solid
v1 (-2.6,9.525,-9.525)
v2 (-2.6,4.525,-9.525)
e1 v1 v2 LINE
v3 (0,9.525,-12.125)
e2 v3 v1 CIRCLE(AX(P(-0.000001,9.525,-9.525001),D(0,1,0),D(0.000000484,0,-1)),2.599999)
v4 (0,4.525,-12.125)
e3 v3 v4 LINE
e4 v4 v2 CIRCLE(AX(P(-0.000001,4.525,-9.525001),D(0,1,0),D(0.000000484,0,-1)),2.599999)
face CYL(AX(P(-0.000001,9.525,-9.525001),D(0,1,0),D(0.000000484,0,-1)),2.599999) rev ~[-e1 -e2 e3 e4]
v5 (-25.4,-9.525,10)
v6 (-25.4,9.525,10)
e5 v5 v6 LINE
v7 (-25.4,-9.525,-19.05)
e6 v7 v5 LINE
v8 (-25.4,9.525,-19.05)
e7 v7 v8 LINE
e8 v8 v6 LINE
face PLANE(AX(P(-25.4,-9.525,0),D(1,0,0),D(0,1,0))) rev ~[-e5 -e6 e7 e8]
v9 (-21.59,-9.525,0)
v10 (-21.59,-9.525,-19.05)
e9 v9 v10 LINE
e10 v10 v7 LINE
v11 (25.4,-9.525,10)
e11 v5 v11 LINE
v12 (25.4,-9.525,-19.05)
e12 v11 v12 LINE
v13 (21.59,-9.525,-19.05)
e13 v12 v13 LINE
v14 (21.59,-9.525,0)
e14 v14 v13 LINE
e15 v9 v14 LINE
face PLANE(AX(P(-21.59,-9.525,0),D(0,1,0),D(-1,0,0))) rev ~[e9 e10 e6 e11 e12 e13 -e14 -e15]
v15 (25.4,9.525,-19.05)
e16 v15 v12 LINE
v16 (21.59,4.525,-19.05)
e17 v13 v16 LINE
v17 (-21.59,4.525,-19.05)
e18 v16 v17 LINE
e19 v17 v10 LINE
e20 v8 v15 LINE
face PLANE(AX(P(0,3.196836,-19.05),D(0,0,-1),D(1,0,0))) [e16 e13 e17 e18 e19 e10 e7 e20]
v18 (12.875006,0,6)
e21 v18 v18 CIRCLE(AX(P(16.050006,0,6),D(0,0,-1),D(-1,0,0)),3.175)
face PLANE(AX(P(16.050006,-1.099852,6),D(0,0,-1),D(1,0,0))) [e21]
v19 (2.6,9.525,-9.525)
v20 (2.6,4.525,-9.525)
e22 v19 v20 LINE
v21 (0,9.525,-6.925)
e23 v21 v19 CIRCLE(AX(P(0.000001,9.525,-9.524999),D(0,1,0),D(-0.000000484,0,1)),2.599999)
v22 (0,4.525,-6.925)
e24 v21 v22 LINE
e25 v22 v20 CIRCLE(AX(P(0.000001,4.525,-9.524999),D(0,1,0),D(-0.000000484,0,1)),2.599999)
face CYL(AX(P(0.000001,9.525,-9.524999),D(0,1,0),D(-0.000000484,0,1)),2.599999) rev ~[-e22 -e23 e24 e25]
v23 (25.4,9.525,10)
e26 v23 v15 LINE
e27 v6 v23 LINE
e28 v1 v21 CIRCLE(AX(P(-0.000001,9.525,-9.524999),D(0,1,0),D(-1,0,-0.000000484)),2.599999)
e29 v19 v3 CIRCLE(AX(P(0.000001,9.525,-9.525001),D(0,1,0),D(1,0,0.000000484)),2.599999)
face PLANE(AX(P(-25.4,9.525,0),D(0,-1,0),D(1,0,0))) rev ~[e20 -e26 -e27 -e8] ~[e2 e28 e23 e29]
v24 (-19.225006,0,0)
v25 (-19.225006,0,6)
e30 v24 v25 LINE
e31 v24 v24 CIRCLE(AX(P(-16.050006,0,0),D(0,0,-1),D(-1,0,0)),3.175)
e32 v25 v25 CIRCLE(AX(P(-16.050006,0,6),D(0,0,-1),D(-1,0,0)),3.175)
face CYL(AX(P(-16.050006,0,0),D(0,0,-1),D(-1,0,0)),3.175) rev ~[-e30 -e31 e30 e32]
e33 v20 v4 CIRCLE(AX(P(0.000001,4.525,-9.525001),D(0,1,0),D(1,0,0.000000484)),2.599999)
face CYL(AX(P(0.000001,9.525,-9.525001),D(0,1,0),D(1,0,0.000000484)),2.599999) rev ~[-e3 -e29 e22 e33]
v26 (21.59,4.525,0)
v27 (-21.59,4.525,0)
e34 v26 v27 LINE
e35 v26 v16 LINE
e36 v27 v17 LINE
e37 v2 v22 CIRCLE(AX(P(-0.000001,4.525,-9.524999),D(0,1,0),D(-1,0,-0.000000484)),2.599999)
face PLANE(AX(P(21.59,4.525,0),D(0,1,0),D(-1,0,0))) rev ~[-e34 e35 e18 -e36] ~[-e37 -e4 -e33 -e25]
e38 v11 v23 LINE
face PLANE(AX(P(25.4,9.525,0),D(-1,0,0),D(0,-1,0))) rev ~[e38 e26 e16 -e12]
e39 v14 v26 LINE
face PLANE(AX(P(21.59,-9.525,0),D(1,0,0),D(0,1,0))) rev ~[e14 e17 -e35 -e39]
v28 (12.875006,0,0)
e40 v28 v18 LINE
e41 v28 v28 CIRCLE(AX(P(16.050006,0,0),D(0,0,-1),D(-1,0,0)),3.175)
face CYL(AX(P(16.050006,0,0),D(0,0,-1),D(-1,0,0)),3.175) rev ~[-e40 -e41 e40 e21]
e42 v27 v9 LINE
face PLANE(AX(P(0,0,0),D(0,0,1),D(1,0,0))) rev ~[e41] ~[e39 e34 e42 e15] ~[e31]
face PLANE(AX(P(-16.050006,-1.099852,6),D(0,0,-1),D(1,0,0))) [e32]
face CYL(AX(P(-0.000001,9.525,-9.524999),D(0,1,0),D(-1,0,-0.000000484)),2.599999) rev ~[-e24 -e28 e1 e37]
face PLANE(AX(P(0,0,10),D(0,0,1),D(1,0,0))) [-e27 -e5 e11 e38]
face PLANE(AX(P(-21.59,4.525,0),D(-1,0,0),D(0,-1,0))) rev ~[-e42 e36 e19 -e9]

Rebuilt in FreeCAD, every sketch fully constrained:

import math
import FreeCAD as App
import Part
import Sketcher

V = App.Vector
Q = App.Units.Quantity


def add_polygon(sketch, points):
    """Adds a closed chain of lines whose ends are joined by coincident constraints."""
    first, n = sketch.GeometryCount, len(points)
    for a, b in zip(points, points[1:] + points[:1]):
        sketch.addGeometry(Part.LineSegment(App.Vector(*a, 0), App.Vector(*b, 0)), False)
    for i in range(n):
        sketch.addConstraint(Sketcher.Constraint("Coincident", first + i, 2, first + (i + 1) % n, 1))

doc = App.newDocument("Part")
params = doc.addObject("Spreadsheet::Sheet", "Params")
for row, (alias, value) in enumerate([
    ("sketch1_width", "2 in"),
    ("sketch1_height", "0.75 in"),
    ("pad1_length", "10 mm"),
    ("sketch2_diameter", "0.25 in"),
    ("pocket1_length", "6 mm"),
    ("sketch3_width", "2 in"),
    ("sketch3_width2", "1.7 in"),
    ("sketch3_height", "0.75 in"),
    ("pad2_length", "0.75 in"),
], start=1):
    params.set(f"A{row}", alias)
    params.set(f"B{row}", "=" + value)
    params.setAlias(f"B{row}", alias)

body = doc.addObject("PartDesign::Body", "Body")

sketch1 = body.newObject("Sketcher::SketchObject", "Sketch")
sketch1.AttachmentSupport = (doc.getObject("XY_Plane"), [""])
sketch1.MapMode = "FlatFace"
add_polygon(sketch1, [(-25, 10), (-25, -10), (25, -10), (25, 10)])
sketch1.addConstraint(Sketcher.Constraint("Vertical", 0))
sketch1.addConstraint(Sketcher.Constraint("Horizontal", 1))
sketch1.addConstraint(Sketcher.Constraint("Vertical", 2))
sketch1.addConstraint(Sketcher.Constraint("Horizontal", 3))
sketch1.addConstraint(Sketcher.Constraint("Symmetric", 0, 2, 2, 2, -1, 1))
sketch1.addConstraint(Sketcher.Constraint("DistanceX", 1, 1, 1, 2, Q("2 in")))
sketch1.addConstraint(Sketcher.Constraint("DistanceY", 0, 2, 0, 1, Q("0.75 in")))
sketch1.setExpression("Constraints[9]", "Params.sketch1_width")
sketch1.setExpression("Constraints[10]", "Params.sketch1_height")
pad1 = body.newObject("PartDesign::Pad", "Pad")
pad1.Profile = sketch1
pad1.setExpression("Length", "Params.pad1_length")

sketch2 = body.newObject("Sketcher::SketchObject", "Sketch001")
sketch2.AttachmentSupport = (doc.getObject("XY_Plane"), [""])
sketch2.MapMode = "FlatFace"
sketch2.addGeometry(Part.Circle(V(-16.1, 0, 0), V(0, 0, 1), 3.2), False)
sketch2.addGeometry(Part.Circle(V(16.1, 0, 0), V(0, 0, 1), 3.2), False)
sketch2.addConstraint(Sketcher.Constraint("Equal", 0, 1))
sketch2.addConstraint(Sketcher.Constraint("Symmetric", 0, 3, 1, 3, -1, 1))
sketch2.addConstraint(Sketcher.Constraint("PointOnObject", 0, 3, -1))
sketch2.addConstraint(Sketcher.Constraint("Diameter", 0, Q("0.25 in")))
sketch2.addConstraint(Sketcher.Constraint("DistanceX", 0, 3, -1, 1, Q("16.050006 mm")))
sketch2.setExpression("Constraints[3]", "Params.sketch2_diameter")
pocket1 = body.newObject("PartDesign::Pocket", "Pocket")
pocket1.Profile = sketch2
pocket1.setExpression("Length", "Params.pocket1_length")
pocket1.Reversed = True

sketch3 = body.newObject("Sketcher::SketchObject", "Sketch002")
sketch3.AttachmentSupport = (doc.getObject("XY_Plane"), [""])
sketch3.MapMode = "FlatFace"
add_polygon(sketch3, [(-25.4, 9.5), (25.4, 9.5), (25.4, -9.5), (21.6, -9.5), (21.6, 4.5), (-21.6, 4.5), (-21.6, -9.5), (-25.4, -9.5)])
sketch3.addConstraint(Sketcher.Constraint("Horizontal", 0))
sketch3.addConstraint(Sketcher.Constraint("Vertical", 1))
sketch3.addConstraint(Sketcher.Constraint("Horizontal", 2))
sketch3.addConstraint(Sketcher.Constraint("Vertical", 3))
sketch3.addConstraint(Sketcher.Constraint("Horizontal", 4))
sketch3.addConstraint(Sketcher.Constraint("Vertical", 5))
sketch3.addConstraint(Sketcher.Constraint("Horizontal", 6))
sketch3.addConstraint(Sketcher.Constraint("Vertical", 7))
sketch3.addConstraint(Sketcher.Constraint("Symmetric", 0, 2, 6, 2, -1, 1))
sketch3.addConstraint(Sketcher.Constraint("Symmetric", 2, 2, 5, 2, -2))
sketch3.addConstraint(Sketcher.Constraint("DistanceX", 0, 1, 0, 2, Q("2 in")))
sketch3.addConstraint(Sketcher.Constraint("DistanceX", 4, 2, 4, 1, Q("1.7 in")))
sketch3.addConstraint(Sketcher.Constraint("DistanceY", 1, 2, 1, 1, Q("0.75 in")))
sketch3.addConstraint(Sketcher.Constraint("DistanceY", 3, 1, 3, 2, Q("14.05 mm")))
sketch3.setExpression("Constraints[18]", "Params.sketch3_width")
sketch3.setExpression("Constraints[19]", "Params.sketch3_width2")
sketch3.setExpression("Constraints[20]", "Params.sketch3_height")
pad2 = body.newObject("PartDesign::Pad", "Pad001")
pad2.Profile = sketch3
pad2.setExpression("Length", "Params.pad2_length")
pad2.Reversed = True

sketch4 = body.newObject("Sketcher::SketchObject", "Sketch003")
sketch4.AttachmentSupport = (doc.getObject("XZ_Plane"), [""])
sketch4.MapMode = "FlatFace"
sketch4.AttachmentOffset = App.Placement(V(0, 0, -0.375 * 25.4), App.Rotation())
sketch4.addGeometry(Part.ArcOfCircle(Part.Circle(V(0, -9.5, 0), V(0, 0, 1), 2.6), math.radians(90), math.radians(180)), False)
sketch4.addGeometry(Part.ArcOfCircle(Part.Circle(V(0, -9.5, 0), V(0, 0, 1), 2.6), math.radians(0), math.radians(90)), False)
sketch4.addGeometry(Part.ArcOfCircle(Part.Circle(V(0, -9.5, 0), V(0, 0, 1), 2.6), math.radians(-90), math.radians(0)), False)
sketch4.addGeometry(Part.ArcOfCircle(Part.Circle(V(0, -9.5, 0), V(0, 0, 1), 2.6), math.radians(180), math.radians(270)), False)
sketch4.addConstraint(Sketcher.Constraint("Tangent", 0, 1, 1, 2))
sketch4.addConstraint(Sketcher.Constraint("Tangent", 1, 1, 2, 2))
sketch4.addConstraint(Sketcher.Constraint("Tangent", 2, 1, 3, 2))
sketch4.addConstraint(Sketcher.Constraint("Tangent", 3, 1, 0, 2))
sketch4.addConstraint(Sketcher.Constraint("Equal", 0, 1))
sketch4.addConstraint(Sketcher.Constraint("Symmetric", 1, 1, 3, 1, -2))
sketch4.addConstraint(Sketcher.Constraint("PointOnObject", 0, 1, -2))
sketch4.addConstraint(Sketcher.Constraint("PointOnObject", 2, 1, -2))
sketch4.addConstraint(Sketcher.Constraint("Horizontal", 3, 3, 1, 1))
sketch4.addConstraint(Sketcher.Constraint("Radius", 0, Q("2.599999 mm")))
sketch4.addConstraint(Sketcher.Constraint("DistanceY", 0, 3, -1, 1, Q("0.375 in")))
pocket2 = body.newObject("PartDesign::Pocket", "Pocket001")
pocket2.Profile = sketch4
pocket2.Type = "ThroughAll"
pocket2.Reversed = True

doc.recompute()
